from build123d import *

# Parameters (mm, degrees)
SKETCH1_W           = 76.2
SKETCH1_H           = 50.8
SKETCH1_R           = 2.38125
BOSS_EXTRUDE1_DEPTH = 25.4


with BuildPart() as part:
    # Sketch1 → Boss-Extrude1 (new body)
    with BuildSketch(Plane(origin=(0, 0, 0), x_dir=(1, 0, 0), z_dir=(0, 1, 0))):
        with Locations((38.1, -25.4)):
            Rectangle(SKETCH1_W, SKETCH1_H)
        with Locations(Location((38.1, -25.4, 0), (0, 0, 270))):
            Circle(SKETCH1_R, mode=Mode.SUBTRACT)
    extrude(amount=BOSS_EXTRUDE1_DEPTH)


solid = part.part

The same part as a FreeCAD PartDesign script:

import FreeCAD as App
import Part
import Sketcher
Q = App.Units.Quantity

doc = App.newDocument("Part")
body = doc.addObject("PartDesign::Body", "Body")

# Sketch on XZ plane
sketch1 = doc.addObject("Sketcher::SketchObject", "Sketch")
body.addObject(sketch1)
sketch1.AttachmentSupport = (doc.XZ_Plane, [""])
sketch1.MapMode = "FlatFace"
sketch1.addGeometry(Part.LineSegment(App.Vector(0, 0, 0), App.Vector(0, 50.8, 0)), False)
sketch1.addGeometry(Part.LineSegment(App.Vector(0, 50.8, 0), App.Vector(76.2, 50.8, 0)), False)
sketch1.addGeometry(Part.LineSegment(App.Vector(76.2, 50.8, 0), App.Vector(76.2, 0, 0)), False)
sketch1.addGeometry(Part.LineSegment(App.Vector(76.2, 0, 0), App.Vector(0, 0, 0)), False)
sketch1.addGeometry(Part.Circle(App.Vector(38.1, 25.4, 0), App.Vector(0, 0, 1), 2.4), False)
sketch1.addConstraint(Sketcher.Constraint("Coincident", 0, 2, 1, 1))
sketch1.addConstraint(Sketcher.Constraint("Coincident", 1, 2, 2, 1))
sketch1.addConstraint(Sketcher.Constraint("Coincident", 2, 2, 3, 1))
sketch1.addConstraint(Sketcher.Constraint("Coincident", 3, 2, 0, 1))
sketch1.addConstraint(Sketcher.Constraint("Vertical", 0))
sketch1.addConstraint(Sketcher.Constraint("Horizontal", 1))
sketch1.addConstraint(Sketcher.Constraint("Vertical", 2))
sketch1.addConstraint(Sketcher.Constraint("Horizontal", 3))
sketch1.addConstraint(Sketcher.Constraint("Coincident", 3, 2, -1, 1))
sketch1.addConstraint(Sketcher.Constraint("DistanceX", 1, 1, 1, 2, Q("3 in")))
sketch1.addConstraint(Sketcher.Constraint("DistanceY", 0, 1, 0, 2, Q("2 in")))
sketch1.addConstraint(Sketcher.Constraint("Diameter", 4, Q("0.1875 in")))
sketch1.addConstraint(Sketcher.Constraint("DistanceY", -1, 1, 4, 3, Q("1 in")))
sketch1.addConstraint(Sketcher.Constraint("DistanceX", -1, 1, 4, 3, Q("1.5 in")))
pad1 = doc.addObject("PartDesign::Pad", "Pad")
body.addObject(pad1)
pad1.Profile = sketch1
pad1.Length = Q("1 in")
pad1.Reversed = True

doc.recompute()
